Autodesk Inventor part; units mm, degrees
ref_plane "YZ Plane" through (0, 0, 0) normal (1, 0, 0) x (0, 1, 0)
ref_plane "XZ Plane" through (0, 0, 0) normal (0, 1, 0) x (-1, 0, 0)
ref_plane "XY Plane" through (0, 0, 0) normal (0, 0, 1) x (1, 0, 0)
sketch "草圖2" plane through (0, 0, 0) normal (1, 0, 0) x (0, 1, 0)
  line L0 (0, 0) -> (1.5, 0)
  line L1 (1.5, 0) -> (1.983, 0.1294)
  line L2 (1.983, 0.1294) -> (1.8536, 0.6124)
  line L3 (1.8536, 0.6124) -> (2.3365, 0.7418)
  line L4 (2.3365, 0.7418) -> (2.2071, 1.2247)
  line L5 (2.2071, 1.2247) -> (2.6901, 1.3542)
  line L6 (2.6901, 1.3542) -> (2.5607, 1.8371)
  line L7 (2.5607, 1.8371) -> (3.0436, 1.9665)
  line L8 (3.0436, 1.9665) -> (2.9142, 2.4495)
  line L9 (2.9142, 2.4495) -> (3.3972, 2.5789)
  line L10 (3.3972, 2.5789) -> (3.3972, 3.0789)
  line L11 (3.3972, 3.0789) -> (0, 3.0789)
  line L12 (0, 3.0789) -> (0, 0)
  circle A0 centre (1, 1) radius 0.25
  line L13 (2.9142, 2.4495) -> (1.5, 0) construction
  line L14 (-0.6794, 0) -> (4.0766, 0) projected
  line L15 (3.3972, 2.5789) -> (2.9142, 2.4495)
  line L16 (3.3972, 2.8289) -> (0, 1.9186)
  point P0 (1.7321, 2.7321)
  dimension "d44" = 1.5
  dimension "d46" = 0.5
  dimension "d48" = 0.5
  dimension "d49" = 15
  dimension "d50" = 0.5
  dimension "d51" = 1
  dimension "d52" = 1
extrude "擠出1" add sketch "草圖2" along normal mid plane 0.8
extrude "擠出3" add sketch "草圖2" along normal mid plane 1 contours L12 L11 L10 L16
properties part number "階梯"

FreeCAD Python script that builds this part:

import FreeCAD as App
import Part
import Sketcher
from FreeCAD import Vector
Q = App.Units.Quantity


def add_polygon(sketch, points):
    """Adds a closed chain of lines whose ends are joined by coincident constraints."""
    first, n = sketch.GeometryCount, len(points)
    for a, b in zip(points, points[1:] + points[:1]):
        sketch.addGeometry(Part.LineSegment(App.Vector(*a, 0), App.Vector(*b, 0)), False)
    for i in range(n):
        sketch.addConstraint(Sketcher.Constraint("Coincident", first + i, 2, first + (i + 1) % n, 1))

doc = App.newDocument("Part")
body = doc.addObject("PartDesign::Body", "Body")

# Sketch on YZ plane
sketch1 = body.newObject("Sketcher::SketchObject", "Sketch")
sketch1.AttachmentSupport = (doc.getObject("YZ_Plane"), [""])
sketch1.MapMode = "FlatFace"
add_polygon(sketch1, [(0, 0), (1.5, 0), (1.983, 0.1294), (1.8536, 0.6124), (2.3365, 0.7418), (2.2071, 1.2247), (2.6901, 1.3542), (2.5607, 1.8371), (3.0436, 1.9665), (2.9142, 2.4495), (3.3972, 2.5789), (3.3972, 3.0789), (0, 3.0789)])  # lines 0-12
sketch1.addGeometry(Part.Circle(Vector(1, 1, 0), Vector(0, 0, 1), 0.25), False)  # 13
sketch1.addConstraint([
    Sketcher.Constraint("Horizontal", 0),
    Sketcher.Constraint("Vertical", 10),
    Sketcher.Constraint("Horizontal", 11),
    Sketcher.Constraint("Vertical", 12),
    Sketcher.Constraint("Coincident", 12, 2, -1, 1),
    Sketcher.Constraint("Perpendicular", 1, 2),
    Sketcher.Constraint("Perpendicular", 2, 3),
    Sketcher.Constraint("Perpendicular", 3, 4),
    Sketcher.Constraint("Perpendicular", 4, 5),
    Sketcher.Constraint("Perpendicular", 5, 6),
    Sketcher.Constraint("Perpendicular", 6, 7),
    Sketcher.Constraint("Perpendicular", 7, 8),
    Sketcher.Constraint("Perpendicular", 8, 9),
    Sketcher.Constraint("Equal", 1, 2),
    Sketcher.Constraint("Equal", 2, 3),
    Sketcher.Constraint("Equal", 3, 4),
    Sketcher.Constraint("Equal", 4, 5),
    Sketcher.Constraint("Equal", 5, 6),
    Sketcher.Constraint("Equal", 6, 7),
    Sketcher.Constraint("Equal", 7, 8),
    Sketcher.Constraint("Equal", 8, 9),
    Sketcher.Constraint("Diameter", 13, 0.5),
    Sketcher.Constraint("DistanceX", 0, 1, 0, 2, 1.5),
    Sketcher.Constraint("DistanceY", 10, 1, 10, 2, 0.5),
    Sketcher.Constraint("DistanceX", -1, 1, 13, 3, 1.0),
    Sketcher.Constraint("DistanceY", -1, 1, 13, 3, 1.0),
    Sketcher.Constraint("Distance", 1, 0.5),
    Sketcher.Constraint("Angle", 3, Q("15.0008 deg")),
])
pad1 = body.newObject("PartDesign::Pad", "Pad")
pad1.Profile = sketch1
pad1.Length = 0.8
pad1.Midplane = True

# Sketch on YZ plane
sketch2 = body.newObject("Sketcher::SketchObject", "Sketch001")
sketch2.AttachmentSupport = (doc.getObject("YZ_Plane"), [""])
sketch2.MapMode = "FlatFace"
add_polygon(sketch2, [(0, 3.0789), (0, 1.9186), (3.3972, 2.8289), (3.3972, 3.0789)])  # lines 0-3
sketch2.addConstraint([
    Sketcher.Constraint("Vertical", 0),
    Sketcher.Constraint("Vertical", 2),
    Sketcher.Constraint("Horizontal", 3),
    Sketcher.Constraint("PointOnObject", 0, 2, -2),
    Sketcher.Constraint("Angle", 1, Q("15.0004 deg")),
    Sketcher.Constraint("DistanceY", 2, 1, 2, 2, 0.25),
    Sketcher.Constraint("Distance", 1, 3.517),
    Sketcher.Constraint("DistanceY", -1, 1, 1, 2, 2.829),
])
pad2 = body.newObject("PartDesign::Pad", "Pad001")
pad2.Profile = sketch2
pad2.Length = 1
pad2.Midplane = True

doc.recompute()
